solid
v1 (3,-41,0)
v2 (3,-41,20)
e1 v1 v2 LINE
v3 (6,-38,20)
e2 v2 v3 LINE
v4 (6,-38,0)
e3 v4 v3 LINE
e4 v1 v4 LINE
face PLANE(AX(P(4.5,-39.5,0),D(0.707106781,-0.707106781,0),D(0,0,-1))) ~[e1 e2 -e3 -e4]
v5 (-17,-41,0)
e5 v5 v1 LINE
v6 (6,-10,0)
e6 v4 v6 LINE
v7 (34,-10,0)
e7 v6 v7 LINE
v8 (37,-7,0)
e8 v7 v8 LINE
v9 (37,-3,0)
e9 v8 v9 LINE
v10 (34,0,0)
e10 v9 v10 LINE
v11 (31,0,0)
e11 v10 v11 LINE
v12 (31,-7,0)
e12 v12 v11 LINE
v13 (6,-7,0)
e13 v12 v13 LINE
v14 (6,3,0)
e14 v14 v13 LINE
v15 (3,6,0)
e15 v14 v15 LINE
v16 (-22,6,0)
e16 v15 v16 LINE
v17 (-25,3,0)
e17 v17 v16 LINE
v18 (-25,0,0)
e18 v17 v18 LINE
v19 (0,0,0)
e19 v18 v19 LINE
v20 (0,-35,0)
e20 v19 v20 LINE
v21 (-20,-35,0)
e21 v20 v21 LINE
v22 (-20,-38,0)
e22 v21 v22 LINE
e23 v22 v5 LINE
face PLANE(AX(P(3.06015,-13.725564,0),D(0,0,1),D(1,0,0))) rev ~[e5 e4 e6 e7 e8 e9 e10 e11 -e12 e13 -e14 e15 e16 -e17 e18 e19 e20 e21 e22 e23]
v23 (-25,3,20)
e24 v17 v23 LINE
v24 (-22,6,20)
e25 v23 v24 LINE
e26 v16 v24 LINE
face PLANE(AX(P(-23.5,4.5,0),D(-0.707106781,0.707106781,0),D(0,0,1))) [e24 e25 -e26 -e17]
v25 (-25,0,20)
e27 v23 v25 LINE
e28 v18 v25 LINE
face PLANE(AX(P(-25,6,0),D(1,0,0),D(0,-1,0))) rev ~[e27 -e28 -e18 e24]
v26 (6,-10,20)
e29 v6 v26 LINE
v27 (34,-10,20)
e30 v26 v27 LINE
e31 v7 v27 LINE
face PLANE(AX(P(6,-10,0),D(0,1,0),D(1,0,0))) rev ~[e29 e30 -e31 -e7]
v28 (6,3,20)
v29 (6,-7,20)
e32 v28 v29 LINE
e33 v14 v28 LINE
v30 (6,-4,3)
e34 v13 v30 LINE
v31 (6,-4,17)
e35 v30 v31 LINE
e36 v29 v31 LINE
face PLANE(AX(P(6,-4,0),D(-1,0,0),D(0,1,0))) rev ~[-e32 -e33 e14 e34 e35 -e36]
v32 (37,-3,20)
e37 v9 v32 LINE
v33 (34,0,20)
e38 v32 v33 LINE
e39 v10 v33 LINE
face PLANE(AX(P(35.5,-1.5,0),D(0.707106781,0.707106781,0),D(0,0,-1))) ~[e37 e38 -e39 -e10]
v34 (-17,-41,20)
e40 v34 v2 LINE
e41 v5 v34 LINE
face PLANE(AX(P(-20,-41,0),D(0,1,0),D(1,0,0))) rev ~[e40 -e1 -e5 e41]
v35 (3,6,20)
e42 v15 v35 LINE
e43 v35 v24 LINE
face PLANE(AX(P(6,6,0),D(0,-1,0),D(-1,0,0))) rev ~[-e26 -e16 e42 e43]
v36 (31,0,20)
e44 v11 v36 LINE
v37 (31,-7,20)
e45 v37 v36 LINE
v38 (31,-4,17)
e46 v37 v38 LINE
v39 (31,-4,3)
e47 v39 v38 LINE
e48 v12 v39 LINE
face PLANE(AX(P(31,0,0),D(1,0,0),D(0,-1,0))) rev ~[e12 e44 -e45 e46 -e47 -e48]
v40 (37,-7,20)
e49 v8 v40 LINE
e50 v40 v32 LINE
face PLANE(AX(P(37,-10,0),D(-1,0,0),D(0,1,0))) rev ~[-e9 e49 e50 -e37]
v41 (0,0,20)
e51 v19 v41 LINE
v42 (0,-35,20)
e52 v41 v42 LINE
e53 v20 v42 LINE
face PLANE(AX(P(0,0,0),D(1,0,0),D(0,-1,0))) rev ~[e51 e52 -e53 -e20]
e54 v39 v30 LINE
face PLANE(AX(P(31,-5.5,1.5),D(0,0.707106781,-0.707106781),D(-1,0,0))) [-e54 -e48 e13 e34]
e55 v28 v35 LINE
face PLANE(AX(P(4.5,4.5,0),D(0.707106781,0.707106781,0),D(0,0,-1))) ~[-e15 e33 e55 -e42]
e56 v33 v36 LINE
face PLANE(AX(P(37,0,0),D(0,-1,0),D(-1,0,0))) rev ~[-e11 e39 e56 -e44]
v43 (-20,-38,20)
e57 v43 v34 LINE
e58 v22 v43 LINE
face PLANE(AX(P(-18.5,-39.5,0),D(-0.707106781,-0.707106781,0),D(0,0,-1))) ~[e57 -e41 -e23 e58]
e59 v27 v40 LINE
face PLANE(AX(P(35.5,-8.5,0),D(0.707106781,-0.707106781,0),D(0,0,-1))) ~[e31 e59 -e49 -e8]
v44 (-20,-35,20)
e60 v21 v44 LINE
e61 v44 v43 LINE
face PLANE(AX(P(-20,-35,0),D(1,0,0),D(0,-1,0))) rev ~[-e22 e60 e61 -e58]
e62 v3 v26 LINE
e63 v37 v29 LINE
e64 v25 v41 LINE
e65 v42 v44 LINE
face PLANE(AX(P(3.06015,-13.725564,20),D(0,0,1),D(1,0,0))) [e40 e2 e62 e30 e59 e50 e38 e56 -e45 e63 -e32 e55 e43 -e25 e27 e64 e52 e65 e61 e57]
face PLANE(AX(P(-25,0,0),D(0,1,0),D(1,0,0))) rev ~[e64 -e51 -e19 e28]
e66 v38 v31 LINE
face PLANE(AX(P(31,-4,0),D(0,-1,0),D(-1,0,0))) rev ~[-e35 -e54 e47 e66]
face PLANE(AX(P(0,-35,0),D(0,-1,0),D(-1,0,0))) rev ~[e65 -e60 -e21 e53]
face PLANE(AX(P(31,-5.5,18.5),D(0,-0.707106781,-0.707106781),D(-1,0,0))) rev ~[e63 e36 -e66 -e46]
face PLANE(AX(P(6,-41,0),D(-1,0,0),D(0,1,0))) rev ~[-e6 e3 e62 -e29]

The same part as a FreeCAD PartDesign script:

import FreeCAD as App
import Part
import Sketcher


def edges_at(feature, points):
    """Names of the edges that pass closest to the given points."""
    edges = feature.Shape.Edges
    near = lambda p: min(range(len(edges)), key=lambda i: edges[i].distToShape(Part.Vertex(*p))[0])
    return sorted({f"Edge{near(p) + 1}" for p in points})

doc = App.newDocument("Part")
body = doc.addObject("PartDesign::Body", "Body")

# Sketch on XY plane
sketch1 = doc.addObject("Sketcher::SketchObject", "Sketch")
body.addObject(sketch1)
sketch1.AttachmentSupport = (doc.XY_Plane, [""])
sketch1.MapMode = "FlatFace"
sketch1.addGeometry([
    Part.LineSegment(App.Vector(-25, 6, 0), App.Vector(-25, 0, 0)),  # 0
    Part.LineSegment(App.Vector(-25, 0, 0), App.Vector(0, 0, 0)),  # 1
    Part.LineSegment(App.Vector(0, 0, 0), App.Vector(0, -35, 0)),  # 2
    Part.LineSegment(App.Vector(0, -35, 0), App.Vector(-20, -35, 0)),  # 3
    Part.LineSegment(App.Vector(-20, -35, 0), App.Vector(-20, -41, 0)),  # 4
    Part.LineSegment(App.Vector(-20, -41, 0), App.Vector(6, -41, 0)),  # 5
    Part.LineSegment(App.Vector(6, -41, 0), App.Vector(6, -10, 0)),  # 6
    Part.LineSegment(App.Vector(6, -10, 0), App.Vector(37, -10, 0)),  # 7
    Part.LineSegment(App.Vector(37, -10, 0), App.Vector(37, 0, 0)),  # 8
    Part.LineSegment(App.Vector(37, 0, 0), App.Vector(31, 0, 0)),  # 9
    Part.LineSegment(App.Vector(31, 0, 0), App.Vector(31, -4, 0)),  # 10
    Part.LineSegment(App.Vector(31, -4, 0), App.Vector(6, -4, 0)),  # 11
    Part.LineSegment(App.Vector(6, -4, 0), App.Vector(6, 6, 0)),  # 12
    Part.LineSegment(App.Vector(6, 6, 0), App.Vector(-25, 6, 0)),  # 13
], False)
sketch1.addConstraint([
    Sketcher.Constraint("Coincident", 0, 2, 1, 1),
    Sketcher.Constraint("Coincident", 1, 2, 2, 1),
    Sketcher.Constraint("Coincident", 2, 2, 3, 1),
    Sketcher.Constraint("Coincident", 3, 2, 4, 1),
    Sketcher.Constraint("Coincident", 4, 2, 5, 1),
    Sketcher.Constraint("Coincident", 5, 2, 6, 1),
    Sketcher.Constraint("Coincident", 6, 2, 7, 1),
    Sketcher.Constraint("Coincident", 7, 2, 8, 1),
    Sketcher.Constraint("Coincident", 8, 2, 9, 1),
    Sketcher.Constraint("Coincident", 9, 2, 10, 1),
    Sketcher.Constraint("Coincident", 10, 2, 11, 1),
    Sketcher.Constraint("Coincident", 11, 2, 12, 1),
    Sketcher.Constraint("Coincident", 12, 2, 13, 1),
    Sketcher.Constraint("Coincident", 13, 2, 0, 1),
    Sketcher.Constraint("Vertical", 0),
    Sketcher.Constraint("Horizontal", 1),
    Sketcher.Constraint("Vertical", 2),
    Sketcher.Constraint("Horizontal", 3),
    Sketcher.Constraint("Vertical", 4),
    Sketcher.Constraint("Horizontal", 5),
    Sketcher.Constraint("Vertical", 6),
    Sketcher.Constraint("Horizontal", 7),
    Sketcher.Constraint("Vertical", 8),
    Sketcher.Constraint("Horizontal", 9),
    Sketcher.Constraint("Vertical", 10),
    Sketcher.Constraint("Horizontal", 11),
    Sketcher.Constraint("Vertical", 12),
    Sketcher.Constraint("Horizontal", 13),
    Sketcher.Constraint("Coincident", 1, 2, -1, 1),
    Sketcher.Constraint("PointOnObject", 8, 2, -1),
    Sketcher.Constraint("Vertical", 6, 2, 11, 2),
    Sketcher.Constraint("Equal", 1, 11),
    Sketcher.Constraint("Equal", 7, 13),
    Sketcher.Constraint("Equal", 9, 0),
    Sketcher.Constraint("Equal", 0, 4),
    Sketcher.Constraint("Equal", 13, 6),
    Sketcher.Constraint("Equal", 8, 12),
    Sketcher.Constraint("DistanceX", 1, 1, 1, 2, 25.0),
    Sketcher.Constraint("DistanceX", 3, 2, 3, 1, 20.0),
    Sketcher.Constraint("DistanceX", 5, 1, 5, 2, 26.0),
    Sketcher.Constraint("DistanceY", 2, 2, 2, 1, 35.0),
])
pad1 = doc.addObject("PartDesign::Pad", "Pad")
body.addObject(pad1)
pad1.Profile = sketch1
pad1.Length = 20
doc.recompute()

chamfer = doc.addObject("PartDesign::Chamfer", "Chamfer")
body.addObject(chamfer)
chamfer.Base = (pad1, edges_at(pad1, [
    (37, -10, 10),
    (6, 6, 10),
    (6, -41, 10),
    (-25, 6, 10),
    (-20, -41, 10),
    (37, 0, 10),
]))
chamfer.Size = 3
doc.recompute()

chamfer2 = doc.addObject("PartDesign::Chamfer", "Chamfer001")
body.addObject(chamfer2)
chamfer2.Base = (chamfer, edges_at(chamfer, [(18.5, -4, 20), (18.5, -4, 0)]))
chamfer2.Size = 3

doc.recompute()
